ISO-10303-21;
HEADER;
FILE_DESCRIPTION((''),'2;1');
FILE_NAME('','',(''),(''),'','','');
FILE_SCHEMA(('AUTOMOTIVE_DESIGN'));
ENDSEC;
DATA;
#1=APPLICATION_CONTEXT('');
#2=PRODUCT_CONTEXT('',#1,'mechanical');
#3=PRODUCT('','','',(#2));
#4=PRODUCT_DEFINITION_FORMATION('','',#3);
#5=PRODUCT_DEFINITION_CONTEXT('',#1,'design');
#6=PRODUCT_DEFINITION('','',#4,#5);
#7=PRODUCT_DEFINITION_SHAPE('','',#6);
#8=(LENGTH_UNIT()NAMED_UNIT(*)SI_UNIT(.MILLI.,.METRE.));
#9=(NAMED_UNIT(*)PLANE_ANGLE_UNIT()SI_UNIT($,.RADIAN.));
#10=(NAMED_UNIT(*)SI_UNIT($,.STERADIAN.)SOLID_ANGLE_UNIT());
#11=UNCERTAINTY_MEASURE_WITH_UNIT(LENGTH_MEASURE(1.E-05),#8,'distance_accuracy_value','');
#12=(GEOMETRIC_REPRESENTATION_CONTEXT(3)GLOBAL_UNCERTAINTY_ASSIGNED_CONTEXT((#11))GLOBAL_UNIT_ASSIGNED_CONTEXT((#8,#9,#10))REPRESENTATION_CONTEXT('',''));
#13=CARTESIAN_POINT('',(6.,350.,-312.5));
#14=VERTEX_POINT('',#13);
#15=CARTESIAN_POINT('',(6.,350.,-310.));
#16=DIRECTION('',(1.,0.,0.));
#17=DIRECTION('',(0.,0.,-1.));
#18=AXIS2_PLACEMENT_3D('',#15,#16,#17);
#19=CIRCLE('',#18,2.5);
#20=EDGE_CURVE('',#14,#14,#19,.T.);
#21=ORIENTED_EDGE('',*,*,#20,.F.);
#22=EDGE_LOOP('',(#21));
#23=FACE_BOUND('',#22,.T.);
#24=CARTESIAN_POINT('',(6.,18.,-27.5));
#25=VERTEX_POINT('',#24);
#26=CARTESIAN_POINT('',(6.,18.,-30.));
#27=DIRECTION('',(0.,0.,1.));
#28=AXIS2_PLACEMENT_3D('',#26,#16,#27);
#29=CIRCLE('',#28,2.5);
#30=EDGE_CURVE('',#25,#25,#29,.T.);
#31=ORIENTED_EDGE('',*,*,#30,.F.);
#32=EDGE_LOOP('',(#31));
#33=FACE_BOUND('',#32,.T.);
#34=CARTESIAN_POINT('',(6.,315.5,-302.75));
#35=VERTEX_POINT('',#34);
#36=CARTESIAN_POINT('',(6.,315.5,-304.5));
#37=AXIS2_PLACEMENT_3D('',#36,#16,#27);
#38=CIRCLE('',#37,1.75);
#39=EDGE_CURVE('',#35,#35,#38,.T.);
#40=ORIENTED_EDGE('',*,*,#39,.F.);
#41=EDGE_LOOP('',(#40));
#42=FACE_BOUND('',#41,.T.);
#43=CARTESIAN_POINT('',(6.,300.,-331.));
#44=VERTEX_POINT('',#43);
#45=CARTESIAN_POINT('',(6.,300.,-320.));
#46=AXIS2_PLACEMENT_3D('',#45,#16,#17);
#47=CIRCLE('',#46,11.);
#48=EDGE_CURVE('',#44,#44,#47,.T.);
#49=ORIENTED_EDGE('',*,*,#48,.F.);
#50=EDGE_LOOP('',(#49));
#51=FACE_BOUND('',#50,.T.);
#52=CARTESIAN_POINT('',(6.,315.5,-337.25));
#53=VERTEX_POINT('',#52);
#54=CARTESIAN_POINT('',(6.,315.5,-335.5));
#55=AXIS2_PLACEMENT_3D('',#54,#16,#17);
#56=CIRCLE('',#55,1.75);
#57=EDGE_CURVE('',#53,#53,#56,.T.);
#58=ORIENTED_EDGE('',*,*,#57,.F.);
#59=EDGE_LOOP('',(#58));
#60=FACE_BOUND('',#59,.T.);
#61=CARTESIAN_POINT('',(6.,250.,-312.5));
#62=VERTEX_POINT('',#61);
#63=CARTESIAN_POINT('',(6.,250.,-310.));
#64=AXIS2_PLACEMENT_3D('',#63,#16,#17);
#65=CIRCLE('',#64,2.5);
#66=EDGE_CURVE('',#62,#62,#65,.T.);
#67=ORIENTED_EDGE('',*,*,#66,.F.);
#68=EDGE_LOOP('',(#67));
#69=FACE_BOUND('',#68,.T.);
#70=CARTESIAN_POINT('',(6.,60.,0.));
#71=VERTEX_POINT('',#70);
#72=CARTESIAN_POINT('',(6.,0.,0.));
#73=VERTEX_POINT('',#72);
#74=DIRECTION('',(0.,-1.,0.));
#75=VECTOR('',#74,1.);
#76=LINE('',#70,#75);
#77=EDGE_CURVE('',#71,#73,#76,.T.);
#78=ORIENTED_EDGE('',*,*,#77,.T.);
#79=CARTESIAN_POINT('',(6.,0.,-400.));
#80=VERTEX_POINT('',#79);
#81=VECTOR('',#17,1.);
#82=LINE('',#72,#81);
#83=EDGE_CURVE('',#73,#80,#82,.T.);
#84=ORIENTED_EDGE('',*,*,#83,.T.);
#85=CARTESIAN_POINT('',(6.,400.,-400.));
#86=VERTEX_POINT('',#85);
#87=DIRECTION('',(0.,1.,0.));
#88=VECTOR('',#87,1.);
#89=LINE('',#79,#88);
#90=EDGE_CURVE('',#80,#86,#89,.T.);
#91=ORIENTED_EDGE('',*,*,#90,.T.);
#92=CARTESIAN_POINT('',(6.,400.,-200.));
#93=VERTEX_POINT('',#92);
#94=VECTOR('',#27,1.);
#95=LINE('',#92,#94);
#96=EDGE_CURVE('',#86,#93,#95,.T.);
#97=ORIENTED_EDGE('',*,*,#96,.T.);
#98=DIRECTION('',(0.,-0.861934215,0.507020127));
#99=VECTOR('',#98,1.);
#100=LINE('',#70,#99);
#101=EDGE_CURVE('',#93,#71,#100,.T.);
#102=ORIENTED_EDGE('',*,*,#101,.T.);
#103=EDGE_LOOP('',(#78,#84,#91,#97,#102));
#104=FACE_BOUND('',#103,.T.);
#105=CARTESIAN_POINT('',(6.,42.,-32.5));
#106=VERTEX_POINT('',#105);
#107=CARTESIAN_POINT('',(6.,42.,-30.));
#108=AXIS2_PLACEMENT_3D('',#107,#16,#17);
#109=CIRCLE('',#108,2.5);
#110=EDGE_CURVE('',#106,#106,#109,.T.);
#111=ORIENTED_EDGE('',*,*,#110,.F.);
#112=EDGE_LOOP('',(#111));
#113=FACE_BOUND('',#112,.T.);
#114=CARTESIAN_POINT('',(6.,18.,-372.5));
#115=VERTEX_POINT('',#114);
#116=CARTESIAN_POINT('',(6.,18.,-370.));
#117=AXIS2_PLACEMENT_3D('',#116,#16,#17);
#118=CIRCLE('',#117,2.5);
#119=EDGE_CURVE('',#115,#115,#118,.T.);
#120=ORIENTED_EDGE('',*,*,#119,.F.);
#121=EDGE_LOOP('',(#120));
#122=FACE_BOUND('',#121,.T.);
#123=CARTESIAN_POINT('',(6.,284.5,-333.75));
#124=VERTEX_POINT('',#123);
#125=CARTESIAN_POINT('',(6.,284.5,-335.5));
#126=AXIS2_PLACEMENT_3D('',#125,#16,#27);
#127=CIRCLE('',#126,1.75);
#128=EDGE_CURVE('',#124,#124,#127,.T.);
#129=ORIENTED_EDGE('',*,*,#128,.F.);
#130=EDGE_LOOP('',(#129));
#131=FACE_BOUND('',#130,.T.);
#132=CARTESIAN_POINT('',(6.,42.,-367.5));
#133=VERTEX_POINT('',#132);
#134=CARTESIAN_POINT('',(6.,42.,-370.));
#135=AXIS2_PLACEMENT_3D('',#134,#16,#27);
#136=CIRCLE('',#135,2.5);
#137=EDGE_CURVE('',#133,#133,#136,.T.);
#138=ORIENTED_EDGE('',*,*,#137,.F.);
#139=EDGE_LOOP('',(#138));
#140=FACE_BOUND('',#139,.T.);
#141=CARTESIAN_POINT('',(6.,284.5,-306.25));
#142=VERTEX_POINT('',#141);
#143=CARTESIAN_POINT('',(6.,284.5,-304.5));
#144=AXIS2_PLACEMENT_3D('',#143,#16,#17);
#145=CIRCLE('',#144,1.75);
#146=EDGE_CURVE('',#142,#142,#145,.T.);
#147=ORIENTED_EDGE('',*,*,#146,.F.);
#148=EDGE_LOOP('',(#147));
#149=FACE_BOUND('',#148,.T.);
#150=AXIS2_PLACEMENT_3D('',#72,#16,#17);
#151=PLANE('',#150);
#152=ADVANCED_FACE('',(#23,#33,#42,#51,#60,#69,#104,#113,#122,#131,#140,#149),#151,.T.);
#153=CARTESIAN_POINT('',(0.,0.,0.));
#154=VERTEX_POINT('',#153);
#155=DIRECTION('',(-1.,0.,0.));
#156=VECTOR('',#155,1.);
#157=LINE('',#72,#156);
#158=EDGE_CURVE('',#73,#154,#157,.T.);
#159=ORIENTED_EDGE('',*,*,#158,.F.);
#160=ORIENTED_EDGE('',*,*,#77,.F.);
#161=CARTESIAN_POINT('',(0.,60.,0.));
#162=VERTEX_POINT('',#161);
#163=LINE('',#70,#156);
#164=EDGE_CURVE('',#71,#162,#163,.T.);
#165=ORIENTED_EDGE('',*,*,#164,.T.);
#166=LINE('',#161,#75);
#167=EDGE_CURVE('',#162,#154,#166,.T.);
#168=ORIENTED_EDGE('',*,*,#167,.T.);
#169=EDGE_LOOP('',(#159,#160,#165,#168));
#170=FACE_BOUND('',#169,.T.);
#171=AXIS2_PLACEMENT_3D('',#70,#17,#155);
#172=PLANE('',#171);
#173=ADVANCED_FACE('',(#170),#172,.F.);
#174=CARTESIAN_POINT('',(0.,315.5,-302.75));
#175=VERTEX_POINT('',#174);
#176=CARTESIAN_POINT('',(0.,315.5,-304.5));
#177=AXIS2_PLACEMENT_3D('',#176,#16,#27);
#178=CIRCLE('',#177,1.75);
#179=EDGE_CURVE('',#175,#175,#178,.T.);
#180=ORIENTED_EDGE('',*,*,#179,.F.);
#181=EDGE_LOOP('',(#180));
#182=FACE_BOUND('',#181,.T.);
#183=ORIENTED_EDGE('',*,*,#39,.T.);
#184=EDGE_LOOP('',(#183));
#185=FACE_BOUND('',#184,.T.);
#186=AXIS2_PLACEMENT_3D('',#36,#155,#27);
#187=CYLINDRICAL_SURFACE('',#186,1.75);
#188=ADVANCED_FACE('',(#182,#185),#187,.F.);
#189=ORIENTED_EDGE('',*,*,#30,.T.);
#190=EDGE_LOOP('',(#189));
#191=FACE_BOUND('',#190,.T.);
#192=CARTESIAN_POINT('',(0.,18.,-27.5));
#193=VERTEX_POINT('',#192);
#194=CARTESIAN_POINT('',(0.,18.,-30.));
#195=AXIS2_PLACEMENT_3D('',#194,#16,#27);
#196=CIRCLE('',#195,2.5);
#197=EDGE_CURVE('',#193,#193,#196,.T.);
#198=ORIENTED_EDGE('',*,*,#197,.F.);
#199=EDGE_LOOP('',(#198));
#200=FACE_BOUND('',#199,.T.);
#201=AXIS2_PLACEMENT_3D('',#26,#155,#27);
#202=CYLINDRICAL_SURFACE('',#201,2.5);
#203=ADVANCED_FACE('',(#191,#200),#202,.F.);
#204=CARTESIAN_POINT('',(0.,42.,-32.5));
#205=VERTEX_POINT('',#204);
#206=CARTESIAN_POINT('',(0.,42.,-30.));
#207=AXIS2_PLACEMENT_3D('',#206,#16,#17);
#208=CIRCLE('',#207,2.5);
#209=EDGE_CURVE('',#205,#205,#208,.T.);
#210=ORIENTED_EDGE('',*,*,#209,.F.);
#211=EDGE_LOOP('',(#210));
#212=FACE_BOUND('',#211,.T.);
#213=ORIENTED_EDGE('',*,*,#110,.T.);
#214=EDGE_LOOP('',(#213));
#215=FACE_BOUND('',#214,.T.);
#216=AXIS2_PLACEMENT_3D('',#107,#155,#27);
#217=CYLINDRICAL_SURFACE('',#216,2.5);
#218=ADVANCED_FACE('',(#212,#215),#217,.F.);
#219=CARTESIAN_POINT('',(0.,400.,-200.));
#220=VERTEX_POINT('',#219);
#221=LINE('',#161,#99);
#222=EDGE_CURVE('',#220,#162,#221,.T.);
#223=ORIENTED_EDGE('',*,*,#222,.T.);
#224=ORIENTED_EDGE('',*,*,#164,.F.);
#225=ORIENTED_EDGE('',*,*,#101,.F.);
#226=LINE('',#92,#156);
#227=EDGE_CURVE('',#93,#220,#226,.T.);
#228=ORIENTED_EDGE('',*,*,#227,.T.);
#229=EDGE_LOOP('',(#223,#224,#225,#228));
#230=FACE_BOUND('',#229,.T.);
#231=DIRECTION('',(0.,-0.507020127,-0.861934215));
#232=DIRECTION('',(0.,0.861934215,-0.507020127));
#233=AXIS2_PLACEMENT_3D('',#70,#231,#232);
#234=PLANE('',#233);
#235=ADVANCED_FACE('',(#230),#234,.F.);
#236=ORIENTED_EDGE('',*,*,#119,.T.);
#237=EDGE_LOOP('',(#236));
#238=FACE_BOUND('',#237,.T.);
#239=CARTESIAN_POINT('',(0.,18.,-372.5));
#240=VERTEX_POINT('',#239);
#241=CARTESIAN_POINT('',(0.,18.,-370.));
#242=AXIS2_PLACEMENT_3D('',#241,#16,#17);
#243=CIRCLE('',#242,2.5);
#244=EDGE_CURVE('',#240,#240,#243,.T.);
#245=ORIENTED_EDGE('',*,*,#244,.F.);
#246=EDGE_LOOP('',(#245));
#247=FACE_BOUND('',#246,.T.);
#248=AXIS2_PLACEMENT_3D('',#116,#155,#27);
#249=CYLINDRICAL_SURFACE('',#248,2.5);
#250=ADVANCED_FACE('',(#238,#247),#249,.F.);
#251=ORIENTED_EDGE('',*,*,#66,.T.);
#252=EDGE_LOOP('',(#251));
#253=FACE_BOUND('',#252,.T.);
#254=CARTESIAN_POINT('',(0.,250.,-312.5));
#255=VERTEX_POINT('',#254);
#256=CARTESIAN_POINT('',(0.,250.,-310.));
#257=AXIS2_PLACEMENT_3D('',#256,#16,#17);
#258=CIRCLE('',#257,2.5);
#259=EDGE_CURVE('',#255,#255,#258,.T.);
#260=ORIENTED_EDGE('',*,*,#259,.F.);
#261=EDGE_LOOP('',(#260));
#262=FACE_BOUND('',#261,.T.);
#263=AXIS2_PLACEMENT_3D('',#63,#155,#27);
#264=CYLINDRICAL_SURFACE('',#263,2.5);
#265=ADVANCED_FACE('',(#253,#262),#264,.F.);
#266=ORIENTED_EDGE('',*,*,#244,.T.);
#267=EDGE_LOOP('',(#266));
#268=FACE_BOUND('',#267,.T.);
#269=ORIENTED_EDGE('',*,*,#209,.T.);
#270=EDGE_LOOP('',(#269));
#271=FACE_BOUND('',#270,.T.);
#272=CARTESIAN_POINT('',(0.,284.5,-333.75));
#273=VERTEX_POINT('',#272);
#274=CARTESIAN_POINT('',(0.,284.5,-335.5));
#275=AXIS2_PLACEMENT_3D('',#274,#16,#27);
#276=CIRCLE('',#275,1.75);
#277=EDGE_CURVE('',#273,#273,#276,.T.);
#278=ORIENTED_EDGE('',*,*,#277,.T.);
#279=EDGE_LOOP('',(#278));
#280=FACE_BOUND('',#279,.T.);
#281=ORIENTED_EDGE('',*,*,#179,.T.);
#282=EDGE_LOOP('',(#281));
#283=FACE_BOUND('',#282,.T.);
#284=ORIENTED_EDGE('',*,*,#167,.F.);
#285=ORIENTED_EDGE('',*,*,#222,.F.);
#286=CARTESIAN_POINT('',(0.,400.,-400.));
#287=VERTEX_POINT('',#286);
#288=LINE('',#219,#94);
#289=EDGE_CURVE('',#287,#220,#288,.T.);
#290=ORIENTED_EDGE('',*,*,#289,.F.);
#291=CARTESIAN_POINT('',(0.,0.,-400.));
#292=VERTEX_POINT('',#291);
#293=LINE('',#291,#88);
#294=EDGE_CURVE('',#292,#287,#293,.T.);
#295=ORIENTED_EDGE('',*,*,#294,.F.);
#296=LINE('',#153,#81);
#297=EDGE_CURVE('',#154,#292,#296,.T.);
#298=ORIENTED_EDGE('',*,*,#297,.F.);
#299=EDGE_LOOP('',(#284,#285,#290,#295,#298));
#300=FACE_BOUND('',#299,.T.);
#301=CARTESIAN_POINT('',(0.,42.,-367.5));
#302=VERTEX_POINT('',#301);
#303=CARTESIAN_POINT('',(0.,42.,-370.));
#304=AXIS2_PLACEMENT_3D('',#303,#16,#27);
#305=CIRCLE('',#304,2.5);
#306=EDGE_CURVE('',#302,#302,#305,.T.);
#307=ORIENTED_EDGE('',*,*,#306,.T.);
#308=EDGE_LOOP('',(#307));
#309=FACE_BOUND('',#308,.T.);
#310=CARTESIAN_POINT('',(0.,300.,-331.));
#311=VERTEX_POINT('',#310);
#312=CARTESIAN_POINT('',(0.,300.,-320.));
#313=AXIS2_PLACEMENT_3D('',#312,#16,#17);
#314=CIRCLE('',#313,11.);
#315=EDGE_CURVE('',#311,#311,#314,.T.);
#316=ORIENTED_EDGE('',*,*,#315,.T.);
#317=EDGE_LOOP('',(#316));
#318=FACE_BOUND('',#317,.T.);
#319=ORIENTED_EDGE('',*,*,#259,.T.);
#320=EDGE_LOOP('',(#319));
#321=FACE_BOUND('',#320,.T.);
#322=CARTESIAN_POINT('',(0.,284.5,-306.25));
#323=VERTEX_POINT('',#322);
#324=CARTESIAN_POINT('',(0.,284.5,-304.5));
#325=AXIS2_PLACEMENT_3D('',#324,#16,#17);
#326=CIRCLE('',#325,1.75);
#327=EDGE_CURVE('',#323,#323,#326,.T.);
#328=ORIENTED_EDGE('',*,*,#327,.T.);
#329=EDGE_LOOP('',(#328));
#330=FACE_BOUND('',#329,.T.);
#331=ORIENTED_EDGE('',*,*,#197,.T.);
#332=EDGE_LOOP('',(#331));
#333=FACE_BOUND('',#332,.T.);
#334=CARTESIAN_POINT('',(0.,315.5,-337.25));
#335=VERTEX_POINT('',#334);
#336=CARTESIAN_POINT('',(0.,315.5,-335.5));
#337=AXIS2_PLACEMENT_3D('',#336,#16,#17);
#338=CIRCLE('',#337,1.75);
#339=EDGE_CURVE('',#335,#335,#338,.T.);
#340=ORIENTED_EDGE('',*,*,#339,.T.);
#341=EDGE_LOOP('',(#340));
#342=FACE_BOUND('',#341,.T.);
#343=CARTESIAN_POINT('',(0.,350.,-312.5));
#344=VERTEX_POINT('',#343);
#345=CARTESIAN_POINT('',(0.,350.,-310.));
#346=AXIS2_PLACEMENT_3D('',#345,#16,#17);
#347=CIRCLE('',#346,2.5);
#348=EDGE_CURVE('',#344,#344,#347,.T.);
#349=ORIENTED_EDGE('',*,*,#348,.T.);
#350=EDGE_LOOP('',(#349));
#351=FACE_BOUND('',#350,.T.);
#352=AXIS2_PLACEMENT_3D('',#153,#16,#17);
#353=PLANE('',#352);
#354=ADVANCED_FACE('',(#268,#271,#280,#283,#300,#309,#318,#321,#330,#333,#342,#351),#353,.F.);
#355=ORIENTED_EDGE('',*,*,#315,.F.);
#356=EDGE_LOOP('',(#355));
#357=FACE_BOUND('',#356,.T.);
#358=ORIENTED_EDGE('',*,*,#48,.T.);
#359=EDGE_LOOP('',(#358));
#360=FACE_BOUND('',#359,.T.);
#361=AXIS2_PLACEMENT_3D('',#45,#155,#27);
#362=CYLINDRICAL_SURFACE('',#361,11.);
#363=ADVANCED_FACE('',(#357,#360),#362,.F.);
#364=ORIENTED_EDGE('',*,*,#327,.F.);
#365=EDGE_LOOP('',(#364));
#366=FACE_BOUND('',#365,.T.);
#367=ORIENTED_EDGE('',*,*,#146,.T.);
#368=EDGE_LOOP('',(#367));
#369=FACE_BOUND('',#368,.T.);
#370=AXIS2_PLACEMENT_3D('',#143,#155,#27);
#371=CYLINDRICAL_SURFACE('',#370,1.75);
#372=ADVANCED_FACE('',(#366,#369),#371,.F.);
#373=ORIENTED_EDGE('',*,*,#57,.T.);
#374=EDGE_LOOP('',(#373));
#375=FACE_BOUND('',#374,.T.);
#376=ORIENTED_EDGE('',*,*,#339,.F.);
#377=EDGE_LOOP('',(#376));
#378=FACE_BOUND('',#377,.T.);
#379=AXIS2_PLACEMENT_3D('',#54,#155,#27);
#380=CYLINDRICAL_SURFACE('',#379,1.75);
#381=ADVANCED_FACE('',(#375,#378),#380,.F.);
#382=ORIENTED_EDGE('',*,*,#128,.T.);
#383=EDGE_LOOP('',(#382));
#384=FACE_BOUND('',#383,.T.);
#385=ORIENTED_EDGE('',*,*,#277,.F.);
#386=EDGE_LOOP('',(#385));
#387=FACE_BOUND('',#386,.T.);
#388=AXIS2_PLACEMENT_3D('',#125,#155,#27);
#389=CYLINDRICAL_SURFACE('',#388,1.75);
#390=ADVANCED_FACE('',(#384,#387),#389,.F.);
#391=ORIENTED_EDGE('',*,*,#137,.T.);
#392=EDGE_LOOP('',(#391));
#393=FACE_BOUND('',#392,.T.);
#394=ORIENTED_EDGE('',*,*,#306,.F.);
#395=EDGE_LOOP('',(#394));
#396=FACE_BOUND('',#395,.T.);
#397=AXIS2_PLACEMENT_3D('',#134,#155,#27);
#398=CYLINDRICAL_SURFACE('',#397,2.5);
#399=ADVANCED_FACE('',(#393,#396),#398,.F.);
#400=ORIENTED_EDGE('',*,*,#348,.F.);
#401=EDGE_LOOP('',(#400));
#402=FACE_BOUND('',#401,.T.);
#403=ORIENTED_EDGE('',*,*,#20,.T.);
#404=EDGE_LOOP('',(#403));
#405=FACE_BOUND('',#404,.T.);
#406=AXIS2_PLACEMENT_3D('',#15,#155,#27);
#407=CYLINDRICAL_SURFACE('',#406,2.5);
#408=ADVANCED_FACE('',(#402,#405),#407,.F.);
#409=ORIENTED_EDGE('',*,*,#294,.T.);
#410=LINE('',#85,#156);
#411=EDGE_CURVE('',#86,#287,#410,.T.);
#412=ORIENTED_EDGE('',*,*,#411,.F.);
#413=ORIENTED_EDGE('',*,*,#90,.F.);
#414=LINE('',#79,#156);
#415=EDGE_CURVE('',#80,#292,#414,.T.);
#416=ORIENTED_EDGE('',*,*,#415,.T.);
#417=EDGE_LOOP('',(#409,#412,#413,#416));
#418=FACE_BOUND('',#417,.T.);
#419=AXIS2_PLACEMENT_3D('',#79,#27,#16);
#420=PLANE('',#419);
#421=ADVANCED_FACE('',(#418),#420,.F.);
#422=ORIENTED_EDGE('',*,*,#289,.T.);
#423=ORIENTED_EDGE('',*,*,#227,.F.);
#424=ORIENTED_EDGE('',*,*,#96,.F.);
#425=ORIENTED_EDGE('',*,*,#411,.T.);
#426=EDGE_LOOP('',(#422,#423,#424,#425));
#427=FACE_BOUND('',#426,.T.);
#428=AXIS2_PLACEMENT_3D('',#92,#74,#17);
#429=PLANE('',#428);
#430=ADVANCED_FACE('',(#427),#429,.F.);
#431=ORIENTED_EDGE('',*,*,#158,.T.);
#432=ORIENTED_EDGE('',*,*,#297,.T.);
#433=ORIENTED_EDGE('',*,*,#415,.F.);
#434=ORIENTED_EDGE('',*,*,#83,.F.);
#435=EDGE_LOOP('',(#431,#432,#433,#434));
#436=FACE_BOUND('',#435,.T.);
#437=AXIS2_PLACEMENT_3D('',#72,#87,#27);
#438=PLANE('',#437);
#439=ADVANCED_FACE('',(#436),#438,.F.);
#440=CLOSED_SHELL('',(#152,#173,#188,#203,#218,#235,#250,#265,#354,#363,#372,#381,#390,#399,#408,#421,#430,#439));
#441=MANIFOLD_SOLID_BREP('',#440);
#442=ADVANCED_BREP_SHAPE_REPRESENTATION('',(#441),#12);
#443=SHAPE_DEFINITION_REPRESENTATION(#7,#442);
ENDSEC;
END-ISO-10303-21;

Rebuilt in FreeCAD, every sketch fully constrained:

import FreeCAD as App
import Part
import Sketcher

V = App.Vector
Q = App.Units.Quantity

doc = App.newDocument("Part")
body = doc.addObject("PartDesign::Body", "Body")

# Sketch on YZ plane
sketch1 = doc.addObject("Sketcher::SketchObject", "Sketch")
body.addObject(sketch1)
sketch1.AttachmentSupport = (doc.YZ_Plane, [""])
sketch1.MapMode = "FlatFace"
sketch1.addGeometry(Part.LineSegment(V(0, 0, 0), V(0, -400, 0)), False)
sketch1.addGeometry(Part.LineSegment(V(0, -400, 0), V(400, -400, 0)), False)
sketch1.addGeometry(Part.LineSegment(V(400, -400, 0), V(400, -200, 0)), False)
sketch1.addGeometry(Part.LineSegment(V(400, -200, 0), V(60, 0, 0)), False)
sketch1.addGeometry(Part.LineSegment(V(60, 0, 0), V(0, 0, 0)), False)
sketch1.addGeometry(Part.Circle(V(18, -30, 0), V(0, 0, 1), 2.5), False)
sketch1.addGeometry(Part.Circle(V(42, -30, 0), V(0, 0, 1), 2.5), False)
sketch1.addGeometry(Part.Circle(V(18, -370, 0), V(0, 0, 1), 2.5), False)
sketch1.addGeometry(Part.Circle(V(42, -370, 0), V(0, 0, 1), 2.5), False)
sketch1.addGeometry(Part.Circle(V(250, -310, 0), V(0, 0, 1), 2.5), False)
sketch1.addGeometry(Part.Circle(V(284.5, -304.5, 0), V(0, 0, 1), 1.8), False)
sketch1.addGeometry(Part.Circle(V(300, -320, 0), V(0, 0, 1), 11), False)
sketch1.addGeometry(Part.Circle(V(284.5, -335.5, 0), V(0, 0, 1), 1.8), False)
sketch1.addGeometry(Part.Circle(V(315.5, -304.5, 0), V(0, 0, 1), 1.8), False)
sketch1.addGeometry(Part.Circle(V(350, -310, 0), V(0, 0, 1), 2.5), False)
sketch1.addGeometry(Part.Circle(V(315.5, -335.5, 0), V(0, 0, 1), 1.8), False)
sketch1.addConstraint(Sketcher.Constraint("Coincident", 0, 2, 1, 1))
sketch1.addConstraint(Sketcher.Constraint("Coincident", 1, 2, 2, 1))
sketch1.addConstraint(Sketcher.Constraint("Coincident", 2, 2, 3, 1))
sketch1.addConstraint(Sketcher.Constraint("Coincident", 3, 2, 4, 1))
sketch1.addConstraint(Sketcher.Constraint("Coincident", 4, 2, 0, 1))
sketch1.addConstraint(Sketcher.Constraint("Vertical", 0))
sketch1.addConstraint(Sketcher.Constraint("Horizontal", 1))
sketch1.addConstraint(Sketcher.Constraint("Vertical", 2))
sketch1.addConstraint(Sketcher.Constraint("Horizontal", 4))
sketch1.addConstraint(Sketcher.Constraint("Coincident", 4, 2, -1, 1))
sketch1.addConstraint(Sketcher.Constraint("Equal", 5, 6))
sketch1.addConstraint(Sketcher.Constraint("Equal", 6, 7))
sketch1.addConstraint(Sketcher.Constraint("Equal", 7, 8))
sketch1.addConstraint(Sketcher.Constraint("Equal", 8, 9))
sketch1.addConstraint(Sketcher.Constraint("Equal", 10, 12))
sketch1.addConstraint(Sketcher.Constraint("Equal", 12, 13))
sketch1.addConstraint(Sketcher.Constraint("Equal", 9, 14))
sketch1.addConstraint(Sketcher.Constraint("Equal", 13, 15))
sketch1.addConstraint(Sketcher.Constraint("Horizontal", 5, 3, 6, 3))
sketch1.addConstraint(Sketcher.Constraint("Horizontal", 7, 3, 8, 3))
sketch1.addConstraint(Sketcher.Constraint("Horizontal", 10, 3, 13, 3))
sketch1.addConstraint(Sketcher.Constraint("Horizontal", 9, 3, 14, 3))
sketch1.addConstraint(Sketcher.Constraint("Horizontal", 12, 3, 15, 3))
sketch1.addConstraint(Sketcher.Constraint("Vertical", 5, 3, 7, 3))
sketch1.addConstraint(Sketcher.Constraint("Vertical", 6, 3, 8, 3))
sketch1.addConstraint(Sketcher.Constraint("Vertical", 10, 3, 12, 3))
sketch1.addConstraint(Sketcher.Constraint("Vertical", 13, 3, 15, 3))
sketch1.addConstraint(Sketcher.Constraint("Equal", 1, 0))
sketch1.addConstraint(Sketcher.Constraint("Diameter", 5, Q("5 mm")))
sketch1.addConstraint(Sketcher.Constraint("Diameter", 11, Q("22 mm")))
sketch1.addConstraint(Sketcher.Constraint("Diameter", 10, Q("3.5 mm")))
sketch1.addConstraint(Sketcher.Constraint("DistanceX", 1, 1, 1, 2, Q("400 mm")))
sketch1.addConstraint(Sketcher.Constraint("DistanceX", 4, 2, 4, 1, Q("60 mm")))
sketch1.addConstraint(Sketcher.Constraint("DistanceY", 2, 1, 2, 2, Q("200 mm")))
sketch1.addConstraint(Sketcher.Constraint("DistanceX", -1, 1, 5, 3, Q("18 mm")))
sketch1.addConstraint(Sketcher.Constraint("DistanceY", 5, 3, -1, 1, Q("30 mm")))
sketch1.addConstraint(Sketcher.Constraint("DistanceX", -1, 1, 6, 3, Q("42 mm")))
sketch1.addConstraint(Sketcher.Constraint("DistanceY", 7, 3, -1, 1, Q("370 mm")))
sketch1.addConstraint(Sketcher.Constraint("DistanceX", -1, 1, 9, 3, Q("250 mm")))
sketch1.addConstraint(Sketcher.Constraint("DistanceY", 9, 3, -1, 1, Q("310 mm")))
sketch1.addConstraint(Sketcher.Constraint("DistanceX", -1, 1, 11, 3, Q("300 mm")))
sketch1.addConstraint(Sketcher.Constraint("DistanceY", 11, 3, -1, 1, Q("320 mm")))
sketch1.addConstraint(Sketcher.Constraint("DistanceX", -1, 1, 14, 3, Q("350 mm")))
sketch1.addConstraint(Sketcher.Constraint("DistanceY", 12, 3, 10, 3, Q("31 mm")))
sketch1.addConstraint(Sketcher.Constraint("DistanceX", 10, 3, 13, 3, Q("31 mm")))
sketch1.addConstraint(Sketcher.Constraint("DistanceX", -1, 1, 10, 3, Q("284.5 mm")))
sketch1.addConstraint(Sketcher.Constraint("DistanceY", 10, 3, -1, 1, Q("304.5 mm")))
pad1 = doc.addObject("PartDesign::Pad", "Pad")
body.addObject(pad1)
pad1.Profile = sketch1
pad1.Length = 6

doc.recompute()
